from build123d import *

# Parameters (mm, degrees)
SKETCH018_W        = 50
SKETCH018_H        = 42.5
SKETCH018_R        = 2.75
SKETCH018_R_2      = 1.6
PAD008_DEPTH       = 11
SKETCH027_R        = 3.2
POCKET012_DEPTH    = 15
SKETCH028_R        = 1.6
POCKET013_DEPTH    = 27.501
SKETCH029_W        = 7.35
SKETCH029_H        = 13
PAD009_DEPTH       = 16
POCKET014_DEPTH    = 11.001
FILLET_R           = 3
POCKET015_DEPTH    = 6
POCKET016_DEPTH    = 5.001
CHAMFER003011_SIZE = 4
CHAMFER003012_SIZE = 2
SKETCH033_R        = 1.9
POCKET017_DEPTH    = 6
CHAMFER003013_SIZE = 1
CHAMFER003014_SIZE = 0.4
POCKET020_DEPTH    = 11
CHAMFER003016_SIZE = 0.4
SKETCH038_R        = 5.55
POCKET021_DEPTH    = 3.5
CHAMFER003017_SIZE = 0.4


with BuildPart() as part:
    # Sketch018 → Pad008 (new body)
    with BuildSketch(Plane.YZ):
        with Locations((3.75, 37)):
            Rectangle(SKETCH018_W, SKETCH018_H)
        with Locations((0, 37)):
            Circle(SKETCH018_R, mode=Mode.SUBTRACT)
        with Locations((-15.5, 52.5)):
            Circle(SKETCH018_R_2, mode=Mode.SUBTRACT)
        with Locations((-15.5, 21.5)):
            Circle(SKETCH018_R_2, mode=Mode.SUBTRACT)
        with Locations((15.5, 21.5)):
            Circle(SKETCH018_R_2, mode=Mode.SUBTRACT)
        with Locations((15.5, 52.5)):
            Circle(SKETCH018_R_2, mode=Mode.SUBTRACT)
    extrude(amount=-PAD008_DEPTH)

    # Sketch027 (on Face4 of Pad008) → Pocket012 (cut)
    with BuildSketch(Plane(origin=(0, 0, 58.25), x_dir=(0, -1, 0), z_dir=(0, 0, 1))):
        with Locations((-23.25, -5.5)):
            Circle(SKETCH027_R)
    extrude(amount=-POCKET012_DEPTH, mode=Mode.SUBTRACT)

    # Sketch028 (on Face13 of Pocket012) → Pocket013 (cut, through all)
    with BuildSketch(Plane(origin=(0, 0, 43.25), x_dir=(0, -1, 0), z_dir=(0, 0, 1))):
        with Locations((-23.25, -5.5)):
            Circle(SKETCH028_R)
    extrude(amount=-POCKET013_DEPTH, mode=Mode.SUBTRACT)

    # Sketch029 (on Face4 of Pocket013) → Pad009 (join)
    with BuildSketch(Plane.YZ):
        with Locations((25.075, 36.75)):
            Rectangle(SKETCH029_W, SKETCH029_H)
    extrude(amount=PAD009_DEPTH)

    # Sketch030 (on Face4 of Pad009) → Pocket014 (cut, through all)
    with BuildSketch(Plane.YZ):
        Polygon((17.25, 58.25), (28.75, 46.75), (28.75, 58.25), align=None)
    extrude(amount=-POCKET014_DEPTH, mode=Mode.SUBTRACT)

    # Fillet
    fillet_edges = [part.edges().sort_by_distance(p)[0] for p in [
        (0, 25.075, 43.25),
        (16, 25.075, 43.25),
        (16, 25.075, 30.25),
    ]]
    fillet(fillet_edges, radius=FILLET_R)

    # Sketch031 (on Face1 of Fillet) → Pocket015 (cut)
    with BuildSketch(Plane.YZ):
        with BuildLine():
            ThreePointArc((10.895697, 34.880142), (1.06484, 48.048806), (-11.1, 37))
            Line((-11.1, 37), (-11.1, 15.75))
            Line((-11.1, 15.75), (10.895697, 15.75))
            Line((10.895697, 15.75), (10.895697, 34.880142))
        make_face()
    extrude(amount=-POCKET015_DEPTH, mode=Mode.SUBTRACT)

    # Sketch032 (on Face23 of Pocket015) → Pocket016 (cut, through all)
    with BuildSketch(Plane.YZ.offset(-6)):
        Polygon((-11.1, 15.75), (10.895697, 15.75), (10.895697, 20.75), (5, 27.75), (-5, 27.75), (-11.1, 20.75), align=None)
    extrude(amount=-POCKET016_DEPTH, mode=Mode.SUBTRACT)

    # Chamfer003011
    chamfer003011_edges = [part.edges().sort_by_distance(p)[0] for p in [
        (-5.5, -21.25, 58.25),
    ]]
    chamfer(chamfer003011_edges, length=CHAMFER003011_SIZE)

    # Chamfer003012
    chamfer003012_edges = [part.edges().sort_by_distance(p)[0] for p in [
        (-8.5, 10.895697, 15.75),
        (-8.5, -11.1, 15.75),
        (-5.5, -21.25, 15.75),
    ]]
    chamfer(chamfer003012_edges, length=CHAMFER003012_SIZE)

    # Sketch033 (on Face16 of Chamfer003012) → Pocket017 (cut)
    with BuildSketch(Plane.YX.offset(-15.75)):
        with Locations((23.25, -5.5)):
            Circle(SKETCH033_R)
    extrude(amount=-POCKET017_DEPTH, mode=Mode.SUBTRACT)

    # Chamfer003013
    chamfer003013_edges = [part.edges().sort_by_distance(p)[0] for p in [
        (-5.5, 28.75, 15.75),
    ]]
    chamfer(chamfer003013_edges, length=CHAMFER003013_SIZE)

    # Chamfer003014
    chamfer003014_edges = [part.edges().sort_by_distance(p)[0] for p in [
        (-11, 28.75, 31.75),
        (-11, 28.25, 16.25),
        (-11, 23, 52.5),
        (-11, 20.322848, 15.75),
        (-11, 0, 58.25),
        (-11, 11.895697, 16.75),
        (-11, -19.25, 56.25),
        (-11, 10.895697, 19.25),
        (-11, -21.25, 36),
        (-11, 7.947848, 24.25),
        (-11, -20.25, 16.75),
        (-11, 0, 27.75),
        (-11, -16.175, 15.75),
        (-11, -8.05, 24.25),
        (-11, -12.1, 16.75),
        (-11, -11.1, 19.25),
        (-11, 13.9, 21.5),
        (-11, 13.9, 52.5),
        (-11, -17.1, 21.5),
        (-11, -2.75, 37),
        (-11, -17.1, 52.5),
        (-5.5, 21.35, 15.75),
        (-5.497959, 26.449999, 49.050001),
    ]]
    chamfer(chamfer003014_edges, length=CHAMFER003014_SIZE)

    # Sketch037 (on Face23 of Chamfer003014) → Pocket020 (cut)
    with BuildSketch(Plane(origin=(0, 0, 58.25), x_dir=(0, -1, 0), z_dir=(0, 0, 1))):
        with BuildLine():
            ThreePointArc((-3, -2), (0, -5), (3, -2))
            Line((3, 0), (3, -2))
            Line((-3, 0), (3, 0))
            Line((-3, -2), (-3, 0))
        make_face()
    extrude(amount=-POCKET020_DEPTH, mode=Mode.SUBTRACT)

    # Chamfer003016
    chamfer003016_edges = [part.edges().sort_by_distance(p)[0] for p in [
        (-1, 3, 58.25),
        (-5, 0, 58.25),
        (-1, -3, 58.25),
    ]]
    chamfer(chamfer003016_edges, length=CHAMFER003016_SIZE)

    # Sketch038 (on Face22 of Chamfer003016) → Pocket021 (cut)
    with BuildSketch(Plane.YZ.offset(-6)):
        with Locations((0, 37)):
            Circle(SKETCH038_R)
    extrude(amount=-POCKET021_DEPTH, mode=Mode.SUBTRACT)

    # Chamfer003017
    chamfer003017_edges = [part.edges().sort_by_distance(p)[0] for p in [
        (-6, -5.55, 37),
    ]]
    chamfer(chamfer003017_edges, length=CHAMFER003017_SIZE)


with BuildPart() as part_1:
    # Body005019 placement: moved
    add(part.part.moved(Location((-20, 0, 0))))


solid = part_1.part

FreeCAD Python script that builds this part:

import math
import FreeCAD as App
import Part
import Sketcher
from FreeCAD import Vector
Q = App.Units.Quantity


def edges_at(feature, points):
    """Names of the edges that pass closest to the given points."""
    edges = feature.Shape.Edges
    near = lambda p: min(range(len(edges)), key=lambda i: edges[i].distToShape(Part.Vertex(*p))[0])
    return sorted({f"Edge{near(p) + 1}" for p in points})

doc = App.newDocument("Part")
body = doc.addObject("PartDesign::Body", "Body")

# Sketch on YZ plane
sketch1 = body.newObject("Sketcher::SketchObject", "Sketch")
sketch1.AttachmentSupport = (doc.getObject("YZ_Plane"), [""])
sketch1.MapMode = "FlatFace"
sketch1.addGeometry([
    Part.LineSegment(Vector(-21.2, 58.2, 0), Vector(-21.2, 15.8, 0)),  # 0
    Part.LineSegment(Vector(-21.2, 15.8, 0), Vector(28.8, 15.8, 0)),  # 1
    Part.LineSegment(Vector(28.8, 15.8, 0), Vector(28.8, 58.2, 0)),  # 2
    Part.LineSegment(Vector(28.8, 58.2, 0), Vector(-21.2, 58.2, 0)),  # 3
    Part.Circle(Vector(-15.5, 21.5, 0), Vector(0, 0, 1), 1.6),  # 4
    Part.Circle(Vector(15.5, 21.5, 0), Vector(0, 0, 1), 1.6),  # 5
    Part.Circle(Vector(-15.5, 52.5, 0), Vector(0, 0, 1), 1.6),  # 6
    Part.Circle(Vector(0, 37, 0), Vector(0, 0, 1), 2.8),  # 7
    Part.Circle(Vector(15.5, 52.5, 0), Vector(0, 0, 1), 1.6),  # 8
], False)
sketch1.addConstraint([
    Sketcher.Constraint("Coincident", 0, 2, 1, 1),
    Sketcher.Constraint("Coincident", 1, 2, 2, 1),
    Sketcher.Constraint("Coincident", 2, 2, 3, 1),
    Sketcher.Constraint("Coincident", 3, 2, 0, 1),
    Sketcher.Constraint("Vertical", 0),
    Sketcher.Constraint("Horizontal", 1),
    Sketcher.Constraint("Vertical", 2),
    Sketcher.Constraint("Horizontal", 3),
    Sketcher.Constraint("Equal", 4, 5),
    Sketcher.Constraint("Equal", 5, 6),
    Sketcher.Constraint("Equal", 6, 8),
    Sketcher.Constraint("Symmetric", 4, 3, 5, 3, -2),
    Sketcher.Constraint("Symmetric", 6, 3, 8, 3, -2),
    Sketcher.Constraint("PointOnObject", 7, 3, -2),
    Sketcher.Constraint("Vertical", 4, 3, 6, 3),
    Sketcher.Constraint("Diameter", 4, Q("3.2 mm")),
    Sketcher.Constraint("Diameter", 7, Q("5.5 mm")),
    Sketcher.Constraint("DistanceX", 1, 1, 1, 2, Q("50 mm")),
    Sketcher.Constraint("DistanceY", 0, 2, 0, 1, Q("42.5 mm")),
    Sketcher.Constraint("DistanceY", -1, 1, 7, 3, Q("37 mm")),
    Sketcher.Constraint("DistanceX", 4, 3, 5, 3, Q("31 mm")),
    Sketcher.Constraint("DistanceY", 4, 3, 6, 3, Q("31 mm")),
    Sketcher.Constraint("DistanceY", -1, 1, 4, 3, Q("21.5 mm")),
    Sketcher.Constraint("DistanceX", 0, 2, -1, 1, Q("21.25 mm")),
    Sketcher.Constraint("DistanceY", -1, 1, 0, 2, Q("15.75 mm")),
])
pad1 = body.newObject("PartDesign::Pad", "Pad")
pad1.Profile = sketch1
pad1.Length = 11
pad1.Reversed = True

# Sketch on XY plane
sketch2 = body.newObject("Sketcher::SketchObject", "Sketch001")
sketch2.AttachmentSupport = (doc.getObject("XY_Plane"), [""])
sketch2.MapMode = "FlatFace"
sketch2.AttachmentOffset = App.Placement(Vector(0, 0, 58.25), App.Rotation())
sketch2.addGeometry(Part.Circle(Vector(-5.5, 23.2, 0), Vector(0, 0, 1), 3.2), False)
sketch2.addConstraint([
    Sketcher.Constraint("Diameter", 0, Q("6.4 mm")),
    Sketcher.Constraint("DistanceX", 0, 3, -1, 1, Q("5.5 mm")),
    Sketcher.Constraint("DistanceY", -1, 1, 0, 3, Q("23.25 mm")),
])
pocket1 = body.newObject("PartDesign::Pocket", "Pocket")
pocket1.Profile = sketch2
pocket1.Length = 15

# Sketch on XY plane
sketch3 = body.newObject("Sketcher::SketchObject", "Sketch002")
sketch3.AttachmentSupport = (doc.getObject("XY_Plane"), [""])
sketch3.MapMode = "FlatFace"
sketch3.AttachmentOffset = App.Placement(Vector(0, 0, 43.25), App.Rotation())
sketch3.addGeometry(Part.Circle(Vector(-5.5, 23.2, 0), Vector(0, 0, 1), 1.6), False)
sketch3.addConstraint([
    Sketcher.Constraint("Diameter", 0, Q("3.2 mm")),
    Sketcher.Constraint("DistanceX", 0, 3, -1, 1, Q("5.5 mm")),
    Sketcher.Constraint("DistanceY", -1, 1, 0, 3, Q("23.25 mm")),
])
pocket2 = body.newObject("PartDesign::Pocket", "Pocket001")
pocket2.Profile = sketch3
pocket2.Type = "ThroughAll"

# Sketch on YZ plane
sketch4 = body.newObject("Sketcher::SketchObject", "Sketch003")
sketch4.AttachmentSupport = (doc.getObject("YZ_Plane"), [""])
sketch4.MapMode = "FlatFace"
sketch4.addGeometry([
    Part.LineSegment(Vector(21, 43, 0), Vector(21, 30, 0)),
    Part.LineSegment(Vector(21, 30, 0), Vector(29, 30, 0)),
    Part.LineSegment(Vector(29, 30, 0), Vector(29, 43, 0)),
    Part.LineSegment(Vector(29, 43, 0), Vector(21, 43, 0)),
], False)
sketch4.addConstraint([
    Sketcher.Constraint("Coincident", 0, 2, 1, 1),
    Sketcher.Constraint("Coincident", 1, 2, 2, 1),
    Sketcher.Constraint("Coincident", 2, 2, 3, 1),
    Sketcher.Constraint("Coincident", 3, 2, 0, 1),
    Sketcher.Constraint("Vertical", 0),
    Sketcher.Constraint("Horizontal", 1),
    Sketcher.Constraint("Vertical", 2),
    Sketcher.Constraint("Horizontal", 3),
    Sketcher.Constraint("DistanceY", 0, 2, 0, 1, Q("13 mm")),
    Sketcher.Constraint("DistanceX", 1, 1, 1, 2, Q("7.35 mm")),
    Sketcher.Constraint("DistanceX", -1, 1, 0, 2, Q("21.4 mm")),
    Sketcher.Constraint("DistanceY", -1, 1, 0, 2, Q("30.25 mm")),
])
pad2 = body.newObject("PartDesign::Pad", "Pad001")
pad2.Profile = sketch4
pad2.Length = 16

# Sketch on YZ plane
sketch5 = body.newObject("Sketcher::SketchObject", "Sketch004")
sketch5.AttachmentSupport = (doc.getObject("YZ_Plane"), [""])
sketch5.MapMode = "FlatFace"
sketch5.addGeometry([
    Part.LineSegment(Vector(17, 58, 0), Vector(29, 47, 0)),
    Part.LineSegment(Vector(29, 47, 0), Vector(29, 58, 0)),
    Part.LineSegment(Vector(29, 58, 0), Vector(17, 58, 0)),
], False)
sketch5.addConstraint([
    Sketcher.Constraint("Coincident", 0, 2, 1, 1),
    Sketcher.Constraint("Coincident", 1, 2, 2, 1),
    Sketcher.Constraint("Coincident", 2, 2, 0, 1),
    Sketcher.Constraint("Vertical", 1),
    Sketcher.Constraint("Horizontal", 2),
    Sketcher.Constraint("Equal", 2, 1),
    Sketcher.Constraint("DistanceX", 2, 2, 2, 1, Q("11.5 mm")),
    Sketcher.Constraint("DistanceX", -1, 1, 0, 2, Q("28.75 mm")),
    Sketcher.Constraint("DistanceY", -1, 1, 0, 2, Q("46.75 mm")),
])
pocket3 = body.newObject("PartDesign::Pocket", "Pocket002")
pocket3.Profile = sketch5
pocket3.Type = "ThroughAll"
doc.recompute()

fillet = body.newObject("PartDesign::Fillet", "Fillet")
fillet.Base = (pocket3, edges_at(pocket3, [(0, 25.075, 43.25), (16, 25.075, 43.25), (16, 25.075, 30.25)]))
fillet.Radius = 3

# Sketch on YZ plane
sketch6 = body.newObject("Sketcher::SketchObject", "Sketch005")
sketch6.AttachmentSupport = (doc.getObject("YZ_Plane"), [""])
sketch6.MapMode = "FlatFace"
sketch6.addGeometry([
    Part.ArcOfCircle(Part.Circle(Vector(0, 37, 0), Vector(0, 0, 1), 11), math.radians(-11), math.radians(180)),
    Part.LineSegment(Vector(-11, 37, 0), Vector(-11, 16, 0)),
    Part.LineSegment(Vector(-11, 16, 0), Vector(11, 16, 0)),
    Part.LineSegment(Vector(11, 16, 0), Vector(11, 35, 0)),
], False)
sketch6.addConstraint([
    Sketcher.Constraint("Tangent", 0, 2, 1, 1),
    Sketcher.Constraint("Coincident", 1, 2, 2, 1),
    Sketcher.Constraint("Coincident", 2, 2, 3, 1),
    Sketcher.Constraint("Coincident", 3, 2, 0, 1),
    Sketcher.Constraint("Vertical", 1),
    Sketcher.Constraint("Horizontal", 2),
    Sketcher.Constraint("Vertical", 3),
    Sketcher.Constraint("PointOnObject", 0, 3, -2),
    Sketcher.Constraint("Radius", 0, Q("11.1 mm")),
    Sketcher.Constraint("DistanceY", -1, 1, 0, 3, Q("37 mm")),
    Sketcher.Constraint("DistanceY", 1, 2, 1, 1, Q("21.25 mm")),
    Sketcher.Constraint("DistanceY", 3, 1, 3, 2, Q("19.130142 mm")),
])
pocket4 = body.newObject("PartDesign::Pocket", "Pocket003")
pocket4.Profile = sketch6
pocket4.Length = 6

# Sketch on YZ plane
sketch7 = body.newObject("Sketcher::SketchObject", "Sketch006")
sketch7.AttachmentSupport = (doc.getObject("YZ_Plane"), [""])
sketch7.MapMode = "FlatFace"
sketch7.AttachmentOffset = App.Placement(Vector(0, 0, -6), App.Rotation())
sketch7.addGeometry([
    Part.LineSegment(Vector(-11, 16, 0), Vector(11, 16, 0)),  # 0
    Part.LineSegment(Vector(11, 16, 0), Vector(11, 21, 0)),  # 1
    Part.LineSegment(Vector(11, 21, 0), Vector(5, 28, 0)),  # 2
    Part.LineSegment(Vector(5, 28, 0), Vector(-5, 28, 0)),  # 3
    Part.LineSegment(Vector(-5, 28, 0), Vector(-11, 21, 0)),  # 4
    Part.LineSegment(Vector(-11, 21, 0), Vector(-11, 16, 0)),  # 5
], False)
sketch7.addConstraint([
    Sketcher.Constraint("Coincident", 0, 2, 1, 1),
    Sketcher.Constraint("Coincident", 1, 2, 2, 1),
    Sketcher.Constraint("Coincident", 2, 2, 3, 1),
    Sketcher.Constraint("Coincident", 3, 2, 4, 1),
    Sketcher.Constraint("Coincident", 4, 2, 5, 1),
    Sketcher.Constraint("Coincident", 5, 2, 0, 1),
    Sketcher.Constraint("Horizontal", 0),
    Sketcher.Constraint("Vertical", 1),
    Sketcher.Constraint("Horizontal", 3),
    Sketcher.Constraint("Vertical", 5),
    Sketcher.Constraint("Horizontal", 1, 2, 4, 2),
    Sketcher.Constraint("DistanceX", 3, 2, 3, 1, Q("10 mm")),
    Sketcher.Constraint("DistanceY", 1, 1, 1, 2, Q("5 mm")),
    Sketcher.Constraint("DistanceX", -1, 1, 2, 2, Q("5 mm")),
    Sketcher.Constraint("DistanceY", 1, 2, 2, 2, Q("7 mm")),
    Sketcher.Constraint("DistanceX", 4, 2, -1, 1, Q("11.1 mm")),
    Sketcher.Constraint("DistanceY", -1, 1, 0, 2, Q("15.75 mm")),
    Sketcher.Constraint("DistanceX", 0, 1, 0, 2, Q("21.995697 mm")),
])
pocket5 = body.newObject("PartDesign::Pocket", "Pocket004")
pocket5.Profile = sketch7
pocket5.Type = "ThroughAll"
doc.recompute()

chamfer = body.newObject("PartDesign::Chamfer", "Chamfer")
chamfer.Base = (pocket5, edges_at(pocket5, [(-5.5, -21.25, 58.25)]))
chamfer.Size = 4
doc.recompute()

chamfer2 = body.newObject("PartDesign::Chamfer", "Chamfer001")
chamfer2.Base = (chamfer, edges_at(chamfer, [(-5.5, 10.896, 15.75), (-5.5, -11.1, 15.75), (-5.5, -21.25, 15.75)]))
chamfer2.Size = 2

# Sketch on XY plane
sketch8 = body.newObject("Sketcher::SketchObject", "Sketch007")
sketch8.AttachmentSupport = (doc.getObject("XY_Plane"), [""])
sketch8.MapMode = "FlatFace"
sketch8.AttachmentOffset = App.Placement(Vector(0, 0, 15.75), App.Rotation())
sketch8.addGeometry(Part.Circle(Vector(-5.5, 23.2, 0), Vector(0, 0, 1), 1.9), False)
sketch8.addConstraint([
    Sketcher.Constraint("Diameter", 0, Q("3.8 mm")),
    Sketcher.Constraint("DistanceX", 0, 3, -1, 1, Q("5.5 mm")),
    Sketcher.Constraint("DistanceY", -1, 1, 0, 3, Q("23.25 mm")),
])
pocket6 = body.newObject("PartDesign::Pocket", "Pocket005")
pocket6.Profile = sketch8
pocket6.Length = 6
pocket6.Reversed = True
doc.recompute()

chamfer3 = body.newObject("PartDesign::Chamfer", "Chamfer002")
chamfer3.Base = (pocket6, edges_at(pocket6, [(-5.5, 28.75, 15.75)]))
chamfer3.Size = 1
doc.recompute()

chamfer4 = body.newObject("PartDesign::Chamfer", "Chamfer003")
chamfer4.Base = (chamfer3, edges_at(chamfer3, [
    (-11, 28.75, 31.75),
    (-11, 28.25, 16.25),
    (-11, 23, 52.5),
    (-11, 20.323, 15.75),
    (-11, 0, 58.25),
    (-11, 11.896, 16.75),
    (-11, -19.25, 56.25),
    (-11, 10.896, 19.25),
    (-11, -21.25, 36),
    (-11, 7.948, 24.25),
    (-11, -20.25, 16.75),
    (-11, 0, 27.75),
    (-11, -16.175, 15.75),
    (-11, -8.05, 24.25),
    (-11, -12.1, 16.75),
    (-11, -11.1, 19.25),
    (-11, 13.9, 21.5),
    (-11, 13.9, 52.5),
    (-11, -17.1, 21.5),
    (-11, -2.75, 37),
    (-11, -17.1, 52.5),
    (-5.5, 21.35, 15.75),
    (-5.498, 26.45, 49.05),
]))
chamfer4.Size = 0.4

# Sketch on XY plane
sketch9 = body.newObject("Sketcher::SketchObject", "Sketch008")
sketch9.AttachmentSupport = (doc.getObject("XY_Plane"), [""])
sketch9.MapMode = "FlatFace"
sketch9.AttachmentOffset = App.Placement(Vector(0, 0, 58.25), App.Rotation())
sketch9.addGeometry([
    Part.ArcOfCircle(Part.Circle(Vector(-2, 0, 0), Vector(0, 0, 1), 3), math.radians(90), math.radians(270)),
    Part.LineSegment(Vector(-2, -3, 0), Vector(0, -3, 0)),
    Part.LineSegment(Vector(0, -3, 0), Vector(0, 3, 0)),
    Part.LineSegment(Vector(0, 3, 0), Vector(-2, 3, 0)),
], False)
sketch9.addConstraint([
    Sketcher.Constraint("Tangent", 0, 2, 1, 1),
    Sketcher.Constraint("Coincident", 1, 2, 2, 1),
    Sketcher.Constraint("Coincident", 2, 2, 3, 1),
    Sketcher.Constraint("Tangent", 3, 2, 0, 1),
    Sketcher.Constraint("Horizontal", 1),
    Sketcher.Constraint("Vertical", 2),
    Sketcher.Constraint("Horizontal", 3),
    Sketcher.Constraint("Symmetric", 1, 2, 2, 2, -1, 1),
    Sketcher.Constraint("Radius", 0, Q("3 mm")),
    Sketcher.Constraint("DistanceX", 1, 1, 1, 2, Q("2 mm")),
])
pocket7 = body.newObject("PartDesign::Pocket", "Pocket006")
pocket7.Profile = sketch9
pocket7.Length = 11
doc.recompute()

chamfer5 = body.newObject("PartDesign::Chamfer", "Chamfer004")
chamfer5.Base = (pocket7, edges_at(pocket7, [(-1, 3, 58.25), (-5, 0, 58.25), (-1, -3, 58.25)]))
chamfer5.Size = 0.4

# Sketch on YZ plane
sketch10 = body.newObject("Sketcher::SketchObject", "Sketch009")
sketch10.AttachmentSupport = (doc.getObject("YZ_Plane"), [""])
sketch10.MapMode = "FlatFace"
sketch10.AttachmentOffset = App.Placement(Vector(0, 0, -6), App.Rotation())
sketch10.addGeometry(Part.Circle(Vector(0, 37, 0), Vector(0, 0, 1), 6), False)
sketch10.addConstraint([
    Sketcher.Constraint("PointOnObject", 0, 3, -2),
    Sketcher.Constraint("Diameter", 0, Q("11.1 mm")),
    Sketcher.Constraint("DistanceY", -1, 1, 0, 3, Q("37 mm")),
])
pocket8 = body.newObject("PartDesign::Pocket", "Pocket007")
pocket8.Profile = sketch10
pocket8.Length = 3.5
doc.recompute()

chamfer6 = body.newObject("PartDesign::Chamfer", "Chamfer005")
chamfer6.Base = (pocket8, edges_at(pocket8, [(-6, -5.55, 37)]))
chamfer6.Size = 0.4
body2 = doc.addObject("PartDesign::Body", "Body001")
doc.recompute()

body.Placement = App.Placement(Vector(-20, 0, 0), App.Rotation(Vector(0, 0, 1), 0))
boolean = body2.newObject("PartDesign::Boolean", "Boolean")
boolean.Type = "Fuse"
boolean.addObjects([body])

doc.recompute()
